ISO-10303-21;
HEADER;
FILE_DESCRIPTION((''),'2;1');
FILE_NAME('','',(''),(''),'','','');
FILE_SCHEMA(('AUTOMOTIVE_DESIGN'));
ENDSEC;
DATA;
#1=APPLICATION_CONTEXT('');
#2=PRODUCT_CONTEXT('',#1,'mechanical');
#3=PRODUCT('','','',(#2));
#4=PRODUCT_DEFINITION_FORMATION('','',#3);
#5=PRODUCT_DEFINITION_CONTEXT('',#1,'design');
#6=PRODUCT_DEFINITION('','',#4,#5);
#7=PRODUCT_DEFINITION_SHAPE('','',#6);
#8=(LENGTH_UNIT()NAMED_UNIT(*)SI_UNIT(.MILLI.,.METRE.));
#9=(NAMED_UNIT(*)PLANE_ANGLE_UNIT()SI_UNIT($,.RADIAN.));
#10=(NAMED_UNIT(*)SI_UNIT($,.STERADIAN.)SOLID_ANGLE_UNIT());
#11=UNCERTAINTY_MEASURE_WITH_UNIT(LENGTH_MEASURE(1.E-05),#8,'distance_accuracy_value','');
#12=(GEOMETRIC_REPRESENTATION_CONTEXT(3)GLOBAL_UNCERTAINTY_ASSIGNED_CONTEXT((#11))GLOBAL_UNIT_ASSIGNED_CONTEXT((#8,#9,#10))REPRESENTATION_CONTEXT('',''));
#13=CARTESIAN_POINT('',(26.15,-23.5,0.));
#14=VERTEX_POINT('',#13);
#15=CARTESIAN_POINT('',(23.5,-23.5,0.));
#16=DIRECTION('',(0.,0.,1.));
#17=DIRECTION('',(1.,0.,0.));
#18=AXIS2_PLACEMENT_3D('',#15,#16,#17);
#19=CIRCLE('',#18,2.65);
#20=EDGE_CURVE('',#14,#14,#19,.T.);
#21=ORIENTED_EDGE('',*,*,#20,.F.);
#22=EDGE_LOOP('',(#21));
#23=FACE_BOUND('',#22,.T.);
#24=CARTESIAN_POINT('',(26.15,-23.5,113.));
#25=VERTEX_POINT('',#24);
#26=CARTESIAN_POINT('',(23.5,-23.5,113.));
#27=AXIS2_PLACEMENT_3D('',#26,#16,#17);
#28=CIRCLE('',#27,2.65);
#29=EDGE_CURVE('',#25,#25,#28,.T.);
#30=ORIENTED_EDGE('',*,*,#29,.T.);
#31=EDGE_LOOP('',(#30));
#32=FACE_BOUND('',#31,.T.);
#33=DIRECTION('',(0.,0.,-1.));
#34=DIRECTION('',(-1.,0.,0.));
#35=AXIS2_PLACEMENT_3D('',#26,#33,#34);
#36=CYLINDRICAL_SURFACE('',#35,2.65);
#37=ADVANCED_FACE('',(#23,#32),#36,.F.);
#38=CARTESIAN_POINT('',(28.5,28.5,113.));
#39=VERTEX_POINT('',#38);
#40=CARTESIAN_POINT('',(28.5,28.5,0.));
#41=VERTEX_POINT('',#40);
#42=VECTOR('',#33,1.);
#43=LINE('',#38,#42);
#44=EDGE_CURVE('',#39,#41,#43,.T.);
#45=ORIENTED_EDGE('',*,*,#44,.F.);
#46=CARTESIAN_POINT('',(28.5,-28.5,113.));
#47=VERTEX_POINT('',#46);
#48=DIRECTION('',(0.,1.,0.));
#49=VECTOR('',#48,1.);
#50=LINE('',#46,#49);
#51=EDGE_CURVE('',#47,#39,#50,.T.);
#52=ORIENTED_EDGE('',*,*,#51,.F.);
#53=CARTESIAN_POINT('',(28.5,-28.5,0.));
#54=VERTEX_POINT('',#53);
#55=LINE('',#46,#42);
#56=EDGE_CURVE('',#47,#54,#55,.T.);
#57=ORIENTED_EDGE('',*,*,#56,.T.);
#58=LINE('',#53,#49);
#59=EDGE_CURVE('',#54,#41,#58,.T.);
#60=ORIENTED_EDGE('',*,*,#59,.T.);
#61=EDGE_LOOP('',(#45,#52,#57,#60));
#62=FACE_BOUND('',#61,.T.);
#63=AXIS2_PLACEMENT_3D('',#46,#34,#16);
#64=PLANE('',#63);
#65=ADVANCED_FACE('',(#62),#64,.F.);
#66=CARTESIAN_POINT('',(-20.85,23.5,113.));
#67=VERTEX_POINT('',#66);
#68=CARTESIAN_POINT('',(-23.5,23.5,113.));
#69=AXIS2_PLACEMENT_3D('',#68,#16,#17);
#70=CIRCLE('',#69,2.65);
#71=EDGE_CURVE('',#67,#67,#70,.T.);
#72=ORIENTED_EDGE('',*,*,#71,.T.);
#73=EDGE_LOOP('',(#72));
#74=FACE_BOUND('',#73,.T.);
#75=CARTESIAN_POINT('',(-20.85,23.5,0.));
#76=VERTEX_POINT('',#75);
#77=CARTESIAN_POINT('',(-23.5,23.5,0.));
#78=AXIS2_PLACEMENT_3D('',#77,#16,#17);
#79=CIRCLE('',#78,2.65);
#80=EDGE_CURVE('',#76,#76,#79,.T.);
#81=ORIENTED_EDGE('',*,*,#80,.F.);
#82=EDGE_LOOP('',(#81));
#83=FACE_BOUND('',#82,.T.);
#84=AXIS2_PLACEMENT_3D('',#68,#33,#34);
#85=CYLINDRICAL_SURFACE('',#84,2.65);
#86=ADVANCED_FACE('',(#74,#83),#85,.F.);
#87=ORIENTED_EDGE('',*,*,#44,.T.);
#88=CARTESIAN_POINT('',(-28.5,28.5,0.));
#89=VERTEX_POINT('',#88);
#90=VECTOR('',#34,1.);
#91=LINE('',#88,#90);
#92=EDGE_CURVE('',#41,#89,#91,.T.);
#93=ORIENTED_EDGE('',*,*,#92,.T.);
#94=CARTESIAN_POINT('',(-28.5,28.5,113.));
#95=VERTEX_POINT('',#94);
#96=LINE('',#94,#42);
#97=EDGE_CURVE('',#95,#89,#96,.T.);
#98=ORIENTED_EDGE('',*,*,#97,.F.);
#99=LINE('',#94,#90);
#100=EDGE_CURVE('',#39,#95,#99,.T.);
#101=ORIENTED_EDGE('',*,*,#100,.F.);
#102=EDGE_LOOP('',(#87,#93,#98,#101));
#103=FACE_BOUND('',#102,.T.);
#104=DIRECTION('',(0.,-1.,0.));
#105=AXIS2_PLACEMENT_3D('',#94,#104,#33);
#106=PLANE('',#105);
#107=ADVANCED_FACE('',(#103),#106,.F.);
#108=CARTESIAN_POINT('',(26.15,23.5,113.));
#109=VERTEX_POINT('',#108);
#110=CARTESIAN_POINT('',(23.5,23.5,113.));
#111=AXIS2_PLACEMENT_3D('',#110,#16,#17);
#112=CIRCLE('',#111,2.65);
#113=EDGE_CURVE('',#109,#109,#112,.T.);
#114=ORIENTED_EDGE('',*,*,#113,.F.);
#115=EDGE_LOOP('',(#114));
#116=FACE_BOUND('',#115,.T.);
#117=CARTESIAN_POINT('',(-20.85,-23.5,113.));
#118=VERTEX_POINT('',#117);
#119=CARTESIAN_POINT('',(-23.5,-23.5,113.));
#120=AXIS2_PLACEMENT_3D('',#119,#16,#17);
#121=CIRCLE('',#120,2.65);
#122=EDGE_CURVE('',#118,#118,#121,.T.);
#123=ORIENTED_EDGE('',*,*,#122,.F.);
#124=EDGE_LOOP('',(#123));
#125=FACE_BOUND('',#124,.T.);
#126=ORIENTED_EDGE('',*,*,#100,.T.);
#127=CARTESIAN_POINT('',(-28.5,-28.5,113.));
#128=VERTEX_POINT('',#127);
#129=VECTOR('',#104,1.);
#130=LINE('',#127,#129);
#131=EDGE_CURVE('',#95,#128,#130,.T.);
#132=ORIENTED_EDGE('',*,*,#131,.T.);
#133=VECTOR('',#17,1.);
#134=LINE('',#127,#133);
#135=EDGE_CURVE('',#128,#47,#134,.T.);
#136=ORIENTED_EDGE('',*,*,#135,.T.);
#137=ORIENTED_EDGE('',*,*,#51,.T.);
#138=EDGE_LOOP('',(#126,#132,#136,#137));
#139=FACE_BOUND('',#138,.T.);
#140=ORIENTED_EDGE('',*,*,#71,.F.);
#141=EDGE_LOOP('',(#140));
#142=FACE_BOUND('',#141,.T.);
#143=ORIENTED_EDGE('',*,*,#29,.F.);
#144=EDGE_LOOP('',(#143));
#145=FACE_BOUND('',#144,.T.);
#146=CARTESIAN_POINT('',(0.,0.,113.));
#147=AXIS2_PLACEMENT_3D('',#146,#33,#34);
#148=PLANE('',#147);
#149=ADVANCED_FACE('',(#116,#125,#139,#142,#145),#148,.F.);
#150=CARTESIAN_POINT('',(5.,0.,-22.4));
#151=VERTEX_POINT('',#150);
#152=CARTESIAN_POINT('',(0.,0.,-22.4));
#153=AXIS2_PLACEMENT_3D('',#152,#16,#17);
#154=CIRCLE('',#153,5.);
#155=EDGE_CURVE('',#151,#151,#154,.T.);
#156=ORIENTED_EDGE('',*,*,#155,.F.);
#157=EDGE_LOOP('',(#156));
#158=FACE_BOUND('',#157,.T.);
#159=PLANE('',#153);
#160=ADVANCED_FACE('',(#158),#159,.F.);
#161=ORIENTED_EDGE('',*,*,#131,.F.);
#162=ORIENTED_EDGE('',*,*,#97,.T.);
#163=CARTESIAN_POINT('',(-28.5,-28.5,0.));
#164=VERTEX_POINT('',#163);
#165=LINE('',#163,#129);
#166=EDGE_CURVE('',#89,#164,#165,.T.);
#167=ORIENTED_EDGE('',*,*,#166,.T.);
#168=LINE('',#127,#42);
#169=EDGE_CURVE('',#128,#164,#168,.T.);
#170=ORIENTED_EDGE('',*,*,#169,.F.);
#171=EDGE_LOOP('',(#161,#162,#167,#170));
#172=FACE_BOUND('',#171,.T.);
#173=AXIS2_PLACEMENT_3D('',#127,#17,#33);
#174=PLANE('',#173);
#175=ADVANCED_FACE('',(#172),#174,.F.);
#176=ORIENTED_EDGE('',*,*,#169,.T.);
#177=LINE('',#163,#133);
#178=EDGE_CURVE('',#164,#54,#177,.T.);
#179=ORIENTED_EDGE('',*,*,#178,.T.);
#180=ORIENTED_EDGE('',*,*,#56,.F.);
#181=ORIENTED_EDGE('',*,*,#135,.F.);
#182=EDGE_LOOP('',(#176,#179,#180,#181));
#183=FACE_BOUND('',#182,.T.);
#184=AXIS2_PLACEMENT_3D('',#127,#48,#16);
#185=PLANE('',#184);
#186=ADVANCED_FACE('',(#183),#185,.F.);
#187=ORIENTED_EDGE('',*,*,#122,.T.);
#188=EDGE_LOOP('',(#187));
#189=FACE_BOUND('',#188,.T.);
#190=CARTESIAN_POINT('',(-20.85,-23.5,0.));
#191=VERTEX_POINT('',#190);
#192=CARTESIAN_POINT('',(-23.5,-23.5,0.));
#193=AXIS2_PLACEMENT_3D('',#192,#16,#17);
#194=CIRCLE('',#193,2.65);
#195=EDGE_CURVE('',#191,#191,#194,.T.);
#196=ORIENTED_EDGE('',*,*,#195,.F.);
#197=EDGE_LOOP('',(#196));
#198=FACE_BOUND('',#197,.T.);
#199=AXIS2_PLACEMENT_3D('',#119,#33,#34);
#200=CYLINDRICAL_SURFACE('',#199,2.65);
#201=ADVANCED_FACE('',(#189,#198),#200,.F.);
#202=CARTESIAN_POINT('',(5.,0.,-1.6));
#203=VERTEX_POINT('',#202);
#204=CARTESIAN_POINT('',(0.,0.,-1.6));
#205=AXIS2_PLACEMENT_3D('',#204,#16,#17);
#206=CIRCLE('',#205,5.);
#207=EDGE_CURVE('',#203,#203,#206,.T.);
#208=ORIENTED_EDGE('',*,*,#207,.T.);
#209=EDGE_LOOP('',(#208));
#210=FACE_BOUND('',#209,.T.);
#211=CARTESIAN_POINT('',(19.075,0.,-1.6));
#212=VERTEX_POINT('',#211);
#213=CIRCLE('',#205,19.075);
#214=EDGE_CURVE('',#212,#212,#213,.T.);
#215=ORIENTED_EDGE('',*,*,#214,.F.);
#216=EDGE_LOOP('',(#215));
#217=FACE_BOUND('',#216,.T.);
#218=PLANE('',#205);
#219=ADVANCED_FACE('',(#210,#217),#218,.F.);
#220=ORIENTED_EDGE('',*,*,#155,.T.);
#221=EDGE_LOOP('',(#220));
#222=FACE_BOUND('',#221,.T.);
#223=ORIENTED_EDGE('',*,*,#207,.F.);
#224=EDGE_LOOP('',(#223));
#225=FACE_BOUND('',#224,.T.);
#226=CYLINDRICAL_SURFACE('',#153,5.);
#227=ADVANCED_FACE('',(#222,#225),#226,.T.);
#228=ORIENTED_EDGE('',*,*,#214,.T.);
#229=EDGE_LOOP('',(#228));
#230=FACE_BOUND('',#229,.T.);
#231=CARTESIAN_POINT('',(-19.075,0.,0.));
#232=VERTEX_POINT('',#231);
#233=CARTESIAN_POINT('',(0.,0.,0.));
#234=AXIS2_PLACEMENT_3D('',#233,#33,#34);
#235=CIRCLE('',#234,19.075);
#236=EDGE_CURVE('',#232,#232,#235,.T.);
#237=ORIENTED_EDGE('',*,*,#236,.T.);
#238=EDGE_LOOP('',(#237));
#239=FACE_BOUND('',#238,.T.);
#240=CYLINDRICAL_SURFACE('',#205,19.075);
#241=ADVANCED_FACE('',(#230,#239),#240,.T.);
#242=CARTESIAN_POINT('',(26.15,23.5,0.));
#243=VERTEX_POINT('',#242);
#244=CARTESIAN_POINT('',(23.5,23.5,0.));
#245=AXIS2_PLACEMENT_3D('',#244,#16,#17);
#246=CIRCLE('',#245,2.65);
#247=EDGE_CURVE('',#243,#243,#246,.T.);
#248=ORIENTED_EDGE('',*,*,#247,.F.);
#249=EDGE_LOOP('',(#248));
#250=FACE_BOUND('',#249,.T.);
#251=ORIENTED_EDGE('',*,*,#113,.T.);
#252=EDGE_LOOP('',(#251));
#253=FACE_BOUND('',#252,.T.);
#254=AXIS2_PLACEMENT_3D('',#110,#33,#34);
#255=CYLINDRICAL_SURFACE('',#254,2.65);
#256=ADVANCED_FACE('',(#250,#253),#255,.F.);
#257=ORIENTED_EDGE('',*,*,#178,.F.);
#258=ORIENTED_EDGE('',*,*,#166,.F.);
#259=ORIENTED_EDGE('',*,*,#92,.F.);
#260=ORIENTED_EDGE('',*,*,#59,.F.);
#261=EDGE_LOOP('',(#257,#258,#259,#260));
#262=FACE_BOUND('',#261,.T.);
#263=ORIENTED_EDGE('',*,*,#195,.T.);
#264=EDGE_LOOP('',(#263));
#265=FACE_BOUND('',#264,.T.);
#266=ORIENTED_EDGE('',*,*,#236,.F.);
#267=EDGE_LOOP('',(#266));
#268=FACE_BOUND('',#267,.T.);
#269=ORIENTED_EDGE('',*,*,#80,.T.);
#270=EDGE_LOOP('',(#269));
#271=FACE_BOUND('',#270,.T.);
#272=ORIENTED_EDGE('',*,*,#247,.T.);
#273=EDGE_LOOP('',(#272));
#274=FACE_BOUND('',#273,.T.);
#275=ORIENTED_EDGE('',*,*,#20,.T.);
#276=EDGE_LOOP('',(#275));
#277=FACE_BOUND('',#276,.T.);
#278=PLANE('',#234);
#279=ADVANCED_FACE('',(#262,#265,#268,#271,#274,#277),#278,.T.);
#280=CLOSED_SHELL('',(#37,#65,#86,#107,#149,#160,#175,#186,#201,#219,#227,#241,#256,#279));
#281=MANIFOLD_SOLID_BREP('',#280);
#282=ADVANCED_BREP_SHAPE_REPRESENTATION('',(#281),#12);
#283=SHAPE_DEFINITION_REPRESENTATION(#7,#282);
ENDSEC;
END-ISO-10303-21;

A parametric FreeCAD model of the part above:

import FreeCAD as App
import Part
import Sketcher
from FreeCAD import Vector
Q = App.Units.Quantity


def add_polygon(sketch, points):
    """Adds a closed chain of lines whose ends are joined by coincident constraints."""
    first, n = sketch.GeometryCount, len(points)
    for a, b in zip(points, points[1:] + points[:1]):
        sketch.addGeometry(Part.LineSegment(App.Vector(*a, 0), App.Vector(*b, 0)), False)
    for i in range(n):
        sketch.addConstraint(Sketcher.Constraint("Coincident", first + i, 2, first + (i + 1) % n, 1))

doc = App.newDocument("Part")
params = doc.addObject("Spreadsheet::Sheet", "Params")
for row, (alias, value) in enumerate([
    ("sketch1_diameter", "5.3 mm"),
    ("sketch1_width", "57 mm"),
    ("pad1_length", "113 mm"),
    ("sketch2_diameter", "38.15 mm"),
    ("pad2_length", "1.6 mm"),
    ("sketch3_diameter", "10 mm"),
    ("pad3_length", "22.4 mm"),
], start=1):
    params.set(f"A{row}", alias)
    params.set(f"B{row}", "=" + value)
    params.setAlias(f"B{row}", alias)

body = doc.addObject("PartDesign::Body", "Body")

sketch1 = body.newObject("Sketcher::SketchObject", "Sketch")
sketch1.AttachmentSupport = (doc.getObject("XY_Plane"), [""])
sketch1.MapMode = "FlatFace"
add_polygon(sketch1, [(-28.5, 28.5), (-28.5, -28.5), (28.5, -28.5), (28.5, 28.5)])
sketch1.addGeometry(Part.Circle(Vector(-23.5, -23.5, 0), Vector(0, 0, 1), 2.6), False)
sketch1.addGeometry(Part.Circle(Vector(23.5, -23.5, 0), Vector(0, 0, 1), 2.6), False)
sketch1.addGeometry(Part.Circle(Vector(-23.5, 23.5, 0), Vector(0, 0, 1), 2.6), False)
sketch1.addGeometry(Part.Circle(Vector(23.5, 23.5, 0), Vector(0, 0, 1), 2.6), False)
sketch1.addConstraint([
    Sketcher.Constraint("Vertical", 0),
    Sketcher.Constraint("Horizontal", 1),
    Sketcher.Constraint("Vertical", 2),
    Sketcher.Constraint("Horizontal", 3),
    Sketcher.Constraint("Equal", 4, 5),
    Sketcher.Constraint("Equal", 5, 6),
    Sketcher.Constraint("Equal", 6, 7),
    Sketcher.Constraint("Symmetric", 5, 3, 6, 3, -1, 1),
    Sketcher.Constraint("Symmetric", 4, 3, 7, 3, -1, 1),
    Sketcher.Constraint("Symmetric", 0, 2, 2, 2, -1, 1),
    Sketcher.Constraint("Symmetric", 4, 3, 5, 3, -2),
    Sketcher.Constraint("Equal", 3, 0),
    Sketcher.Constraint("Diameter", 4, Q("5.3 mm")),
    Sketcher.Constraint("DistanceX", 1, 1, 1, 2, Q("57 mm")),
    Sketcher.Constraint("DistanceX", 4, 3, 5, 3, Q("47 mm")),
    Sketcher.Constraint("DistanceY", 4, 3, 6, 3, Q("47 mm")),
])
sketch1.setExpression("Constraints[16]", "Params.sketch1_diameter")
sketch1.setExpression("Constraints[17]", "Params.sketch1_width")
pad1 = body.newObject("PartDesign::Pad", "Pad")
pad1.Profile = sketch1
pad1.setExpression("Length", "Params.pad1_length")

sketch2 = body.newObject("Sketcher::SketchObject", "Sketch001")
sketch2.AttachmentSupport = (doc.getObject("XY_Plane"), [""])
sketch2.MapMode = "FlatFace"
sketch2.addGeometry(Part.Circle(Vector(0, 0, 0), Vector(0, 0, 1), 19), False)
sketch2.addConstraint([
    Sketcher.Constraint("Coincident", 0, 3, -1, 1),
    Sketcher.Constraint("Diameter", 0, Q("38.15 mm")),
])
sketch2.setExpression("Constraints[1]", "Params.sketch2_diameter")
pad2 = body.newObject("PartDesign::Pad", "Pad001")
pad2.Profile = sketch2
pad2.setExpression("Length", "Params.pad2_length")
pad2.Reversed = True

sketch3 = body.newObject("Sketcher::SketchObject", "Sketch002")
sketch3.AttachmentSupport = (doc.getObject("XY_Plane"), [""])
sketch3.MapMode = "FlatFace"
sketch3.addGeometry(Part.Circle(Vector(0, 0, 0), Vector(0, 0, 1), 5), False)
sketch3.addConstraint([
    Sketcher.Constraint("Coincident", 0, 3, -1, 1),
    Sketcher.Constraint("Diameter", 0, Q("10 mm")),
])
sketch3.setExpression("Constraints[1]", "Params.sketch3_diameter")
pad3 = body.newObject("PartDesign::Pad", "Pad002")
pad3.Profile = sketch3
pad3.setExpression("Length", "Params.pad3_length")
pad3.Reversed = True

doc.recompute()
